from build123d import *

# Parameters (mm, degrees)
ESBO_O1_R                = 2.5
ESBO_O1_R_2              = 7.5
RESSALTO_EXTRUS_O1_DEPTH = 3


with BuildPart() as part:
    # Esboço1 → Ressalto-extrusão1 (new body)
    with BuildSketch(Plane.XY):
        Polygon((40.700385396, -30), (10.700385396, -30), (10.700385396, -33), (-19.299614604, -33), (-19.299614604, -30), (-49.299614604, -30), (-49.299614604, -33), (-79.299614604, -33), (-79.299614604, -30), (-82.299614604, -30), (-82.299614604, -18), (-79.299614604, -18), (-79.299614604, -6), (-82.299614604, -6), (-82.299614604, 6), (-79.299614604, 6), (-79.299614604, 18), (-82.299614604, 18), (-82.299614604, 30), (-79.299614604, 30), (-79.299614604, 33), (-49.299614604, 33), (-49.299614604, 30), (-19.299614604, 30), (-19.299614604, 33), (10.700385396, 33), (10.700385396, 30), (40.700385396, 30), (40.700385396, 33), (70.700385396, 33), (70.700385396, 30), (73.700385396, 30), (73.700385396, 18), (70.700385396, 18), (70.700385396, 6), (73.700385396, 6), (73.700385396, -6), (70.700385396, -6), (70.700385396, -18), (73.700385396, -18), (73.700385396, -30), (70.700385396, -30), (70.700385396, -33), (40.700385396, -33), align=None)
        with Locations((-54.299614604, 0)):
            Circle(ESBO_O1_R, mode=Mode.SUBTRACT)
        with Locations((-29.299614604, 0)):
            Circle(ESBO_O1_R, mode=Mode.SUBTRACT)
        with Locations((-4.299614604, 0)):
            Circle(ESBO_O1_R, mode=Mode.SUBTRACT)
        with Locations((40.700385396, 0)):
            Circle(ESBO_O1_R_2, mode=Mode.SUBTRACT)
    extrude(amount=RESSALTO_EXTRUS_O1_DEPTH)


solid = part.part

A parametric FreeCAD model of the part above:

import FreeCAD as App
import Part
import Sketcher

V = App.Vector
Q = App.Units.Quantity

doc = App.newDocument("Part")
body = doc.addObject("PartDesign::Body", "Body")

sketch1 = body.newObject("Sketcher::SketchObject", "Sketch")
sketch1.AttachmentSupport = (doc.getObject("XY_Plane"), [""])
sketch1.MapMode = "FlatFace"
sketch1.addGeometry([
    Part.LineSegment(V(10.7, -30, 0), V(40.7, -30, 0)),
    Part.LineSegment(V(40.7, -30, 0), V(40.7, -33, 0)),
    Part.LineSegment(V(40.7, -33, 0), V(70.7, -33, 0)),
    Part.LineSegment(V(70.7, -33, 0), V(70.7, -30, 0)),
    Part.LineSegment(V(70.7, -30, 0), V(73.7, -30, 0)),
    Part.LineSegment(V(73.7, -30, 0), V(73.7, -18, 0)),
    Part.LineSegment(V(73.7, -18, 0), V(70.7, -18, 0)),
    Part.LineSegment(V(70.7, -18, 0), V(70.7, -6, 0)),
    Part.LineSegment(V(70.7, -6, 0), V(73.7, -6, 0)),
    Part.LineSegment(V(73.7, -6, 0), V(73.7, 6, 0)),
    Part.LineSegment(V(73.7, 6, 0), V(70.7, 6, 0)),
    Part.LineSegment(V(70.7, 6, 0), V(70.7, 18, 0)),
    Part.LineSegment(V(70.7, 18, 0), V(73.7, 18, 0)),
    Part.LineSegment(V(73.7, 18, 0), V(73.7, 30, 0)),
    Part.LineSegment(V(73.7, 30, 0), V(70.7, 30, 0)),
    Part.LineSegment(V(70.7, 30, 0), V(70.7, 33, 0)),
    Part.LineSegment(V(70.7, 33, 0), V(40.7, 33, 0)),
    Part.LineSegment(V(40.7, 33, 0), V(40.7, 30, 0)),
    Part.LineSegment(V(40.7, 30, 0), V(10.7, 30, 0)),
    Part.LineSegment(V(10.7, 30, 0), V(10.7, 33, 0)),
    Part.LineSegment(V(10.7, 33, 0), V(-19.3, 33, 0)),
    Part.LineSegment(V(-19.3, 33, 0), V(-19.3, 30, 0)),
    Part.LineSegment(V(-19.3, 30, 0), V(-49.3, 30, 0)),
    Part.LineSegment(V(-49.3, 30, 0), V(-49.3, 33, 0)),
    Part.LineSegment(V(-49.3, 33, 0), V(-79.3, 33, 0)),
    Part.LineSegment(V(-79.3, 33, 0), V(-79.3, 30, 0)),
    Part.LineSegment(V(-79.3, 30, 0), V(-82.3, 30, 0)),
    Part.LineSegment(V(-82.3, 30, 0), V(-82.3, 18, 0)),
    Part.LineSegment(V(-82.3, 18, 0), V(-79.3, 18, 0)),
    Part.LineSegment(V(-79.3, 18, 0), V(-79.3, 6, 0)),
    Part.LineSegment(V(-79.3, 6, 0), V(-82.3, 6, 0)),
    Part.LineSegment(V(-82.3, 6, 0), V(-82.3, -6, 0)),
    Part.LineSegment(V(-82.3, -6, 0), V(-79.3, -6, 0)),
    Part.LineSegment(V(-79.3, -6, 0), V(-79.3, -18, 0)),
    Part.LineSegment(V(-79.3, -18, 0), V(-82.3, -18, 0)),
    Part.LineSegment(V(-82.3, -18, 0), V(-82.3, -30, 0)),
    Part.LineSegment(V(-82.3, -30, 0), V(-79.3, -30, 0)),
    Part.LineSegment(V(-79.3, -30, 0), V(-79.3, -33, 0)),
    Part.LineSegment(V(-79.3, -33, 0), V(-49.3, -33, 0)),
    Part.LineSegment(V(-49.3, -33, 0), V(-49.3, -30, 0)),
    Part.LineSegment(V(-49.3, -30, 0), V(-19.3, -30, 0)),
    Part.LineSegment(V(-19.3, -30, 0), V(-19.3, -33, 0)),
    Part.LineSegment(V(-19.3, -33, 0), V(10.7, -33, 0)),
    Part.LineSegment(V(10.7, -33, 0), V(10.7, -30, 0)),
    Part.Circle(V(40.7, 0, 0), V(0, 0, 1), 7.5),
    Part.Circle(V(-4.3, 0, 0), V(0, 0, 1), 2.5),
    Part.Circle(V(-29.3, 0, 0), V(0, 0, 1), 2.5),
    Part.Circle(V(-54.3, 0, 0), V(0, 0, 1), 2.5),
], False)
sketch1.addConstraint([
    Sketcher.Constraint("Coincident", 0, 2, 1, 1),
    Sketcher.Constraint("Coincident", 1, 2, 2, 1),
    Sketcher.Constraint("Coincident", 2, 2, 3, 1),
    Sketcher.Constraint("Coincident", 3, 2, 4, 1),
    Sketcher.Constraint("Coincident", 4, 2, 5, 1),
    Sketcher.Constraint("Coincident", 5, 2, 6, 1),
    Sketcher.Constraint("Coincident", 6, 2, 7, 1),
    Sketcher.Constraint("Coincident", 7, 2, 8, 1),
    Sketcher.Constraint("Coincident", 8, 2, 9, 1),
    Sketcher.Constraint("Coincident", 9, 2, 10, 1),
    Sketcher.Constraint("Coincident", 10, 2, 11, 1),
    Sketcher.Constraint("Coincident", 11, 2, 12, 1),
    Sketcher.Constraint("Coincident", 12, 2, 13, 1),
    Sketcher.Constraint("Coincident", 13, 2, 14, 1),
    Sketcher.Constraint("Coincident", 14, 2, 15, 1),
    Sketcher.Constraint("Coincident", 15, 2, 16, 1),
    Sketcher.Constraint("Coincident", 16, 2, 17, 1),
    Sketcher.Constraint("Coincident", 17, 2, 18, 1),
    Sketcher.Constraint("Coincident", 18, 2, 19, 1),
    Sketcher.Constraint("Coincident", 19, 2, 20, 1),
    Sketcher.Constraint("Coincident", 20, 2, 21, 1),
    Sketcher.Constraint("Coincident", 21, 2, 22, 1),
    Sketcher.Constraint("Coincident", 22, 2, 23, 1),
    Sketcher.Constraint("Coincident", 23, 2, 24, 1),
    Sketcher.Constraint("Coincident", 24, 2, 25, 1),
    Sketcher.Constraint("Coincident", 25, 2, 26, 1),
    Sketcher.Constraint("Coincident", 26, 2, 27, 1),
    Sketcher.Constraint("Coincident", 27, 2, 28, 1),
    Sketcher.Constraint("Coincident", 28, 2, 29, 1),
    Sketcher.Constraint("Coincident", 29, 2, 30, 1),
    Sketcher.Constraint("Coincident", 30, 2, 31, 1),
    Sketcher.Constraint("Coincident", 31, 2, 32, 1),
    Sketcher.Constraint("Coincident", 32, 2, 33, 1),
    Sketcher.Constraint("Coincident", 33, 2, 34, 1),
    Sketcher.Constraint("Coincident", 34, 2, 35, 1),
    Sketcher.Constraint("Coincident", 35, 2, 36, 1),
    Sketcher.Constraint("Coincident", 36, 2, 37, 1),
    Sketcher.Constraint("Coincident", 37, 2, 38, 1),
    Sketcher.Constraint("Coincident", 38, 2, 39, 1),
    Sketcher.Constraint("Coincident", 39, 2, 40, 1),
    Sketcher.Constraint("Coincident", 40, 2, 41, 1),
    Sketcher.Constraint("Coincident", 41, 2, 42, 1),
    Sketcher.Constraint("Coincident", 42, 2, 43, 1),
    Sketcher.Constraint("Coincident", 43, 2, 0, 1),
    Sketcher.Constraint("Horizontal", 0),
    Sketcher.Constraint("Vertical", 1),
    Sketcher.Constraint("Horizontal", 2),
    Sketcher.Constraint("Vertical", 3),
    Sketcher.Constraint("Horizontal", 4),
    Sketcher.Constraint("Vertical", 5),
    Sketcher.Constraint("Horizontal", 6),
    Sketcher.Constraint("Vertical", 7),
    Sketcher.Constraint("Horizontal", 8),
    Sketcher.Constraint("Vertical", 9),
    Sketcher.Constraint("Horizontal", 10),
    Sketcher.Constraint("Vertical", 11),
    Sketcher.Constraint("Horizontal", 12),
    Sketcher.Constraint("Vertical", 13),
    Sketcher.Constraint("Horizontal", 14),
    Sketcher.Constraint("Vertical", 15),
    Sketcher.Constraint("Horizontal", 16),
    Sketcher.Constraint("Vertical", 17),
    Sketcher.Constraint("Horizontal", 18),
    Sketcher.Constraint("Vertical", 19),
    Sketcher.Constraint("Horizontal", 20),
    Sketcher.Constraint("Vertical", 21),
    Sketcher.Constraint("Horizontal", 22),
    Sketcher.Constraint("Vertical", 23),
    Sketcher.Constraint("Horizontal", 24),
    Sketcher.Constraint("Vertical", 25),
    Sketcher.Constraint("Horizontal", 26),
    Sketcher.Constraint("Vertical", 27),
    Sketcher.Constraint("Horizontal", 28),
    Sketcher.Constraint("Vertical", 29),
    Sketcher.Constraint("Horizontal", 30),
    Sketcher.Constraint("Vertical", 31),
    Sketcher.Constraint("Horizontal", 32),
    Sketcher.Constraint("Vertical", 33),
    Sketcher.Constraint("Horizontal", 34),
    Sketcher.Constraint("Vertical", 35),
    Sketcher.Constraint("Horizontal", 36),
    Sketcher.Constraint("Vertical", 37),
    Sketcher.Constraint("Horizontal", 38),
    Sketcher.Constraint("Vertical", 39),
    Sketcher.Constraint("Horizontal", 40),
    Sketcher.Constraint("Vertical", 41),
    Sketcher.Constraint("Horizontal", 42),
    Sketcher.Constraint("Vertical", 43),
    Sketcher.Constraint("Equal", 45, 46),
    Sketcher.Constraint("Equal", 46, 47),
    Sketcher.Constraint("Symmetric", 7, 2, 10, 2, -1),
    Sketcher.Constraint("Symmetric", 5, 2, 12, 2, -1),
    Sketcher.Constraint("Symmetric", 3, 2, 14, 2, -1),
    Sketcher.Constraint("Symmetric", 1, 2, 16, 2, -1),
    Sketcher.Constraint("Symmetric", 29, 2, 32, 2, -1),
    Sketcher.Constraint("Symmetric", 27, 2, 34, 2, -1),
    Sketcher.Constraint("Symmetric", 25, 2, 36, 2, -1),
    Sketcher.Constraint("Symmetric", 23, 2, 38, 2, -1),
    Sketcher.Constraint("Symmetric", 21, 2, 40, 2, -1),
    Sketcher.Constraint("Symmetric", 19, 2, 42, 2, -1),
    Sketcher.Constraint("PointOnObject", 44, 3, -1),
    Sketcher.Constraint("PointOnObject", 45, 3, -1),
    Sketcher.Constraint("PointOnObject", 46, 3, -1),
    Sketcher.Constraint("PointOnObject", 47, 3, -1),
    Sketcher.Constraint("Horizontal", 0, 2, 3, 2),
    Sketcher.Constraint("Horizontal", 14, 2, 17, 2),
    Sketcher.Constraint("Horizontal", 16, 2, 19, 2),
    Sketcher.Constraint("Horizontal", 18, 2, 21, 2),
    Sketcher.Constraint("Horizontal", 20, 2, 23, 2),
    Sketcher.Constraint("Horizontal", 22, 2, 25, 2),
    Sketcher.Constraint("Horizontal", 12, 2, 27, 2),
    Sketcher.Constraint("Horizontal", 10, 2, 29, 2),
    Sketcher.Constraint("Vertical", 44, 3, 0, 2),
    Sketcher.Constraint("Vertical", 3, 2, 6, 2),
    Sketcher.Constraint("Vertical", 5, 2, 8, 2),
    Sketcher.Constraint("Vertical", 25, 2, 28, 2),
    Sketcher.Constraint("Vertical", 27, 2, 30, 2),
    Sketcher.Constraint("Equal", 0, 2),
    Sketcher.Constraint("Equal", 18, 20),
    Sketcher.Constraint("Equal", 20, 22),
    Sketcher.Constraint("Equal", 22, 24),
    Sketcher.Constraint("Equal", 14, 26),
    Sketcher.Constraint("Equal", 36, 1),
    Sketcher.Constraint("Equal", 5, 7),
    Sketcher.Constraint("Equal", 7, 9),
    Sketcher.Constraint("Diameter", 44, Q("15 mm")),
    Sketcher.Constraint("Diameter", 45, Q("5 mm")),
    Sketcher.Constraint("DistanceX", 0, 1, 0, 2, Q("30 mm")),
    Sketcher.Constraint("DistanceX", 4, 1, 4, 2, Q("3 mm")),
    Sketcher.Constraint("DistanceY", 5, 1, 5, 2, Q("12 mm")),
    Sketcher.Constraint("DistanceX", 45, 3, 44, 3, Q("45 mm")),
    Sketcher.Constraint("DistanceX", 46, 3, 45, 3, Q("25 mm")),
    Sketcher.Constraint("DistanceX", 47, 3, 46, 3, Q("25 mm")),
    Sketcher.Constraint("DistanceX", -1, 1, 44, 3, Q("40.700385 mm")),
])
pad1 = body.newObject("PartDesign::Pad", "Pad")
pad1.Profile = sketch1
pad1.Length = 3

doc.recompute()
